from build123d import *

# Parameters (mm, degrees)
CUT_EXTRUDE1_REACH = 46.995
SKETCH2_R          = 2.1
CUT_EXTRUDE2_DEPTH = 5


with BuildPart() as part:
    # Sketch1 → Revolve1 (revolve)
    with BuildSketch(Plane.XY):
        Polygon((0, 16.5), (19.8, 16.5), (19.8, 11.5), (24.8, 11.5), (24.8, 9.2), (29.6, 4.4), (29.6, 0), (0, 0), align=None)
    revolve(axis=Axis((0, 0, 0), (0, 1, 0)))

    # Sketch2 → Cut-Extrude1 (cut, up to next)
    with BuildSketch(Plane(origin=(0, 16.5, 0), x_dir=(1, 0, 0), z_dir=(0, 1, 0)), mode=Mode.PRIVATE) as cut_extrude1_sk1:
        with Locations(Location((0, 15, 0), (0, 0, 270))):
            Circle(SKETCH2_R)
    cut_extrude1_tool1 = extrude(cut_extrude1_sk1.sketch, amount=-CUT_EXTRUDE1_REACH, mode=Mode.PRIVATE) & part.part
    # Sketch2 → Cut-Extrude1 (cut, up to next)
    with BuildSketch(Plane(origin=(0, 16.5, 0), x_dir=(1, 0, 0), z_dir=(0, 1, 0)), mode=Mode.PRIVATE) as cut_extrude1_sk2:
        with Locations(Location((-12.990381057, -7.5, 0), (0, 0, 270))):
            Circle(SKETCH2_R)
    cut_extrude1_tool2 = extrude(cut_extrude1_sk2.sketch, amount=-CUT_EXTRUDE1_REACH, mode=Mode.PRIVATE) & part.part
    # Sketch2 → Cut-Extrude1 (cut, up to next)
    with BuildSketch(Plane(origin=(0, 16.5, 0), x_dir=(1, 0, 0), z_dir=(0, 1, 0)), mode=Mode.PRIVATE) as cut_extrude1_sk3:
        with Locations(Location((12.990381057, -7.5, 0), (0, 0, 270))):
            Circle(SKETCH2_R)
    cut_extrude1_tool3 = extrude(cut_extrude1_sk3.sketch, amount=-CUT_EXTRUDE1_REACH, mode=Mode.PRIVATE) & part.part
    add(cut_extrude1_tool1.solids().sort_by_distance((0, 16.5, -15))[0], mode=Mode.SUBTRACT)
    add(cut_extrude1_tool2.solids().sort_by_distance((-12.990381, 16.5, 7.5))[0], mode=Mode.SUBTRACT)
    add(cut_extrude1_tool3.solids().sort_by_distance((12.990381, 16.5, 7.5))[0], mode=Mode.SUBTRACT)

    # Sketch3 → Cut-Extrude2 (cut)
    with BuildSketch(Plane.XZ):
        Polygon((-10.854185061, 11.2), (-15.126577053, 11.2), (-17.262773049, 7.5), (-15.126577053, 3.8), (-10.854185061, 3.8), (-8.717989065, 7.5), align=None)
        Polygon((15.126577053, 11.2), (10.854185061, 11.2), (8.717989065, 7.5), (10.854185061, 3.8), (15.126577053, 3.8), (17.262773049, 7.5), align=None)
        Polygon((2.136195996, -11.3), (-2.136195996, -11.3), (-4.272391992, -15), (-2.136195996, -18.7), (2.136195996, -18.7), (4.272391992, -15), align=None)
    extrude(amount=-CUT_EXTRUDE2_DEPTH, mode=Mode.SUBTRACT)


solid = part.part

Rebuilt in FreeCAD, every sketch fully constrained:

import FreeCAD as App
import Part
import Sketcher

V = App.Vector
Q = App.Units.Quantity

doc = App.newDocument("Part")
body = doc.addObject("PartDesign::Body", "Body")

sketch1 = body.newObject("Sketcher::SketchObject", "Sketch")
sketch1.AttachmentSupport = (doc.getObject("XY_Plane"), [""])
sketch1.MapMode = "FlatFace"
sketch1.addGeometry([
    Part.LineSegment(V(19.8, 16.5, 0), V(0, 16.5, 0)),
    Part.LineSegment(V(0, 16.5, 0), V(0, 0, 0)),
    Part.LineSegment(V(0, 0, 0), V(29.6, 0, 0)),
    Part.LineSegment(V(29.6, 0, 0), V(29.6, 4.4, 0)),
    Part.LineSegment(V(29.6, 4.4, 0), V(24.8, 9.2, 0)),
    Part.LineSegment(V(24.8, 9.2, 0), V(24.8, 11.5, 0)),
    Part.LineSegment(V(24.8, 11.5, 0), V(19.8, 11.5, 0)),
    Part.LineSegment(V(19.8, 11.5, 0), V(19.8, 16.5, 0)),
], False)
sketch1.addConstraint([
    Sketcher.Constraint("Coincident", 0, 2, 1, 1),
    Sketcher.Constraint("Coincident", 1, 2, 2, 1),
    Sketcher.Constraint("Coincident", 2, 2, 3, 1),
    Sketcher.Constraint("Coincident", 3, 2, 4, 1),
    Sketcher.Constraint("Coincident", 4, 2, 5, 1),
    Sketcher.Constraint("Coincident", 5, 2, 6, 1),
    Sketcher.Constraint("Coincident", 6, 2, 7, 1),
    Sketcher.Constraint("Coincident", 7, 2, 0, 1),
    Sketcher.Constraint("Horizontal", 0),
    Sketcher.Constraint("Vertical", 1),
    Sketcher.Constraint("Horizontal", 2),
    Sketcher.Constraint("Vertical", 3),
    Sketcher.Constraint("Vertical", 5),
    Sketcher.Constraint("Horizontal", 6),
    Sketcher.Constraint("Vertical", 7),
    Sketcher.Constraint("Coincident", 1, 2, -1, 1),
    Sketcher.Constraint("Equal", 6, 7),
    Sketcher.Constraint("DistanceX", 6, 2, 6, 1, 5.0),
    Sketcher.Constraint("Angle", 4, Q("135 deg")),
    Sketcher.Constraint("DistanceX", 0, 2, 0, 1, 19.8),
    Sketcher.Constraint("DistanceX", 2, 1, 2, 2, 29.6),
    Sketcher.Constraint("DistanceY", 1, 2, 1, 1, 16.5),
    Sketcher.Constraint("DistanceY", 3, 1, 3, 2, 4.4),
])
revolution = body.newObject("PartDesign::Revolution", "Revolution")
revolution.Profile = sketch1
revolution.ReferenceAxis = (sketch1, ["V_Axis"])
revolution.Angle = 360

sketch2 = body.newObject("Sketcher::SketchObject", "Sketch001")
sketch2.AttachmentSupport = (doc.getObject("XZ_Plane"), [""])
sketch2.MapMode = "FlatFace"
sketch2.AttachmentOffset = App.Placement(V(0, 0, -16.5), App.Rotation())
sketch2.addGeometry(Part.Circle(V(0, -15, 0), V(0, 0, 1), 2.1), False)
sketch2.addConstraint([
    Sketcher.Constraint("PointOnObject", 0, 3, -2),
    Sketcher.Constraint("Diameter", 0, 4.2),
    Sketcher.Constraint("DistanceY", 0, 3, -1, 1, 15.0),
])
pocket1 = body.newObject("PartDesign::Pocket", "Pocket")
pocket1.Profile = sketch2
pocket1.Type = "UpToFirst"
pocket1.Reversed = True

sketch3 = body.newObject("Sketcher::SketchObject", "Sketch002")
sketch3.AttachmentSupport = (doc.getObject("XZ_Plane"), [""])
sketch3.MapMode = "FlatFace"
sketch3.AttachmentOffset = App.Placement(V(0, 0, -16.5), App.Rotation())
sketch3.addGeometry(Part.Circle(V(-13, 7.5, 0), V(0, 0, 1), 2.1), False)
sketch3.addConstraint([
    Sketcher.Constraint("Diameter", 0, 4.2),
    Sketcher.Constraint("DistanceY", -1, 1, 0, 3, 7.5),
    Sketcher.Constraint("DistanceX", 0, 3, -1, 1, 12.990381),
])
pocket2 = body.newObject("PartDesign::Pocket", "Pocket001")
pocket2.Profile = sketch3
pocket2.Type = "UpToFirst"
pocket2.Reversed = True

sketch4 = body.newObject("Sketcher::SketchObject", "Sketch003")
sketch4.AttachmentSupport = (doc.getObject("XZ_Plane"), [""])
sketch4.MapMode = "FlatFace"
sketch4.AttachmentOffset = App.Placement(V(0, 0, -16.5), App.Rotation())
sketch4.addGeometry(Part.Circle(V(13, 7.5, 0), V(0, 0, 1), 2.1), False)
sketch4.addConstraint([
    Sketcher.Constraint("Diameter", 0, 4.2),
    Sketcher.Constraint("DistanceY", -1, 1, 0, 3, 7.5),
    Sketcher.Constraint("DistanceX", -1, 1, 0, 3, 12.990381),
])
pocket3 = body.newObject("PartDesign::Pocket", "Pocket002")
pocket3.Profile = sketch4
pocket3.Type = "UpToFirst"
pocket3.Reversed = True

sketch5 = body.newObject("Sketcher::SketchObject", "Sketch004")
sketch5.AttachmentSupport = (doc.getObject("XZ_Plane"), [""])
sketch5.MapMode = "FlatFace"
sketch5.addGeometry([
    Part.LineSegment(V(-10.9, 11.2, 0), V(-15.1, 11.2, 0)),
    Part.LineSegment(V(-15.1, 11.2, 0), V(-17.3, 7.5, 0)),
    Part.LineSegment(V(-17.3, 7.5, 0), V(-15.1, 3.8, 0)),
    Part.LineSegment(V(-15.1, 3.8, 0), V(-10.9, 3.8, 0)),
    Part.LineSegment(V(-10.9, 3.8, 0), V(-8.7, 7.5, 0)),
    Part.LineSegment(V(-8.7, 7.5, 0), V(-10.9, 11.2, 0)),
    Part.LineSegment(V(15.1, 11.2, 0), V(10.9, 11.2, 0)),
    Part.LineSegment(V(10.9, 11.2, 0), V(8.7, 7.5, 0)),
    Part.LineSegment(V(8.7, 7.5, 0), V(10.9, 3.8, 0)),
    Part.LineSegment(V(10.9, 3.8, 0), V(15.1, 3.8, 0)),
    Part.LineSegment(V(15.1, 3.8, 0), V(17.3, 7.5, 0)),
    Part.LineSegment(V(17.3, 7.5, 0), V(15.1, 11.2, 0)),
    Part.LineSegment(V(2.1, -11.3, 0), V(-2.1, -11.3, 0)),
    Part.LineSegment(V(-2.1, -11.3, 0), V(-4.3, -15, 0)),
    Part.LineSegment(V(-4.3, -15, 0), V(-2.1, -18.7, 0)),
    Part.LineSegment(V(-2.1, -18.7, 0), V(2.1, -18.7, 0)),
    Part.LineSegment(V(2.1, -18.7, 0), V(4.3, -15, 0)),
    Part.LineSegment(V(4.3, -15, 0), V(2.1, -11.3, 0)),
], False)
sketch5.addConstraint([
    Sketcher.Constraint("Coincident", 0, 2, 1, 1),
    Sketcher.Constraint("Coincident", 1, 2, 2, 1),
    Sketcher.Constraint("Coincident", 2, 2, 3, 1),
    Sketcher.Constraint("Coincident", 3, 2, 4, 1),
    Sketcher.Constraint("Coincident", 4, 2, 5, 1),
    Sketcher.Constraint("Coincident", 5, 2, 0, 1),
    Sketcher.Constraint("Coincident", 6, 2, 7, 1),
    Sketcher.Constraint("Coincident", 7, 2, 8, 1),
    Sketcher.Constraint("Coincident", 8, 2, 9, 1),
    Sketcher.Constraint("Coincident", 9, 2, 10, 1),
    Sketcher.Constraint("Coincident", 10, 2, 11, 1),
    Sketcher.Constraint("Coincident", 11, 2, 6, 1),
    Sketcher.Constraint("Coincident", 12, 2, 13, 1),
    Sketcher.Constraint("Coincident", 13, 2, 14, 1),
    Sketcher.Constraint("Coincident", 14, 2, 15, 1),
    Sketcher.Constraint("Coincident", 15, 2, 16, 1),
    Sketcher.Constraint("Coincident", 16, 2, 17, 1),
    Sketcher.Constraint("Coincident", 17, 2, 12, 1),
    Sketcher.Constraint("Horizontal", 0),
    Sketcher.Constraint("Horizontal", 3),
    Sketcher.Constraint("Horizontal", 6),
    Sketcher.Constraint("Horizontal", 9),
    Sketcher.Constraint("Horizontal", 12),
    Sketcher.Constraint("Horizontal", 15),
    Sketcher.Constraint("Symmetric", 5, 2, 6, 2, -2),
    Sketcher.Constraint("Symmetric", 4, 2, 7, 2, -2),
    Sketcher.Constraint("Symmetric", 3, 2, 8, 2, -2),
    Sketcher.Constraint("Symmetric", 1, 2, 10, 2, -2),
    Sketcher.Constraint("Symmetric", 13, 2, 16, 2, -2),
    Sketcher.Constraint("Parallel", 1, 4),
    Sketcher.Constraint("Parallel", 2, 5),
    Sketcher.Constraint("Parallel", 4, 7),
    Sketcher.Constraint("Parallel", 7, 10),
    Sketcher.Constraint("Parallel", 8, 11),
    Sketcher.Constraint("Parallel", 10, 13),
    Sketcher.Constraint("Parallel", 11, 14),
    Sketcher.Constraint("Parallel", 13, 16),
    Sketcher.Constraint("Parallel", 14, 17),
    Sketcher.Constraint("Horizontal", 1, 2, 4, 2),
    Sketcher.Constraint("Vertical", 0, 2, 2, 2),
    Sketcher.Constraint("Vertical", 12, 2, 14, 2),
    Sketcher.Constraint("Equal", 9, 12),
    Sketcher.Constraint("Equal", 11, 13),
    Sketcher.Constraint("Angle", 1, Q("-120 deg")),
    Sketcher.Constraint("DistanceY", 13, 2, -1, 1, 15.0),
    Sketcher.Constraint("DistanceY", -1, 1, 0, 2, 11.2),
    Sketcher.Constraint("DistanceY", -1, 1, 1, 2, 7.5),
    Sketcher.Constraint("DistanceX", 0, 2, 0, 1, 4.272392),
    Sketcher.Constraint("DistanceX", 4, 2, -1, 1, 8.717989),
])
pocket4 = body.newObject("PartDesign::Pocket", "Pocket003")
pocket4.Profile = sketch5
pocket4.Length = 5

doc.recompute()
